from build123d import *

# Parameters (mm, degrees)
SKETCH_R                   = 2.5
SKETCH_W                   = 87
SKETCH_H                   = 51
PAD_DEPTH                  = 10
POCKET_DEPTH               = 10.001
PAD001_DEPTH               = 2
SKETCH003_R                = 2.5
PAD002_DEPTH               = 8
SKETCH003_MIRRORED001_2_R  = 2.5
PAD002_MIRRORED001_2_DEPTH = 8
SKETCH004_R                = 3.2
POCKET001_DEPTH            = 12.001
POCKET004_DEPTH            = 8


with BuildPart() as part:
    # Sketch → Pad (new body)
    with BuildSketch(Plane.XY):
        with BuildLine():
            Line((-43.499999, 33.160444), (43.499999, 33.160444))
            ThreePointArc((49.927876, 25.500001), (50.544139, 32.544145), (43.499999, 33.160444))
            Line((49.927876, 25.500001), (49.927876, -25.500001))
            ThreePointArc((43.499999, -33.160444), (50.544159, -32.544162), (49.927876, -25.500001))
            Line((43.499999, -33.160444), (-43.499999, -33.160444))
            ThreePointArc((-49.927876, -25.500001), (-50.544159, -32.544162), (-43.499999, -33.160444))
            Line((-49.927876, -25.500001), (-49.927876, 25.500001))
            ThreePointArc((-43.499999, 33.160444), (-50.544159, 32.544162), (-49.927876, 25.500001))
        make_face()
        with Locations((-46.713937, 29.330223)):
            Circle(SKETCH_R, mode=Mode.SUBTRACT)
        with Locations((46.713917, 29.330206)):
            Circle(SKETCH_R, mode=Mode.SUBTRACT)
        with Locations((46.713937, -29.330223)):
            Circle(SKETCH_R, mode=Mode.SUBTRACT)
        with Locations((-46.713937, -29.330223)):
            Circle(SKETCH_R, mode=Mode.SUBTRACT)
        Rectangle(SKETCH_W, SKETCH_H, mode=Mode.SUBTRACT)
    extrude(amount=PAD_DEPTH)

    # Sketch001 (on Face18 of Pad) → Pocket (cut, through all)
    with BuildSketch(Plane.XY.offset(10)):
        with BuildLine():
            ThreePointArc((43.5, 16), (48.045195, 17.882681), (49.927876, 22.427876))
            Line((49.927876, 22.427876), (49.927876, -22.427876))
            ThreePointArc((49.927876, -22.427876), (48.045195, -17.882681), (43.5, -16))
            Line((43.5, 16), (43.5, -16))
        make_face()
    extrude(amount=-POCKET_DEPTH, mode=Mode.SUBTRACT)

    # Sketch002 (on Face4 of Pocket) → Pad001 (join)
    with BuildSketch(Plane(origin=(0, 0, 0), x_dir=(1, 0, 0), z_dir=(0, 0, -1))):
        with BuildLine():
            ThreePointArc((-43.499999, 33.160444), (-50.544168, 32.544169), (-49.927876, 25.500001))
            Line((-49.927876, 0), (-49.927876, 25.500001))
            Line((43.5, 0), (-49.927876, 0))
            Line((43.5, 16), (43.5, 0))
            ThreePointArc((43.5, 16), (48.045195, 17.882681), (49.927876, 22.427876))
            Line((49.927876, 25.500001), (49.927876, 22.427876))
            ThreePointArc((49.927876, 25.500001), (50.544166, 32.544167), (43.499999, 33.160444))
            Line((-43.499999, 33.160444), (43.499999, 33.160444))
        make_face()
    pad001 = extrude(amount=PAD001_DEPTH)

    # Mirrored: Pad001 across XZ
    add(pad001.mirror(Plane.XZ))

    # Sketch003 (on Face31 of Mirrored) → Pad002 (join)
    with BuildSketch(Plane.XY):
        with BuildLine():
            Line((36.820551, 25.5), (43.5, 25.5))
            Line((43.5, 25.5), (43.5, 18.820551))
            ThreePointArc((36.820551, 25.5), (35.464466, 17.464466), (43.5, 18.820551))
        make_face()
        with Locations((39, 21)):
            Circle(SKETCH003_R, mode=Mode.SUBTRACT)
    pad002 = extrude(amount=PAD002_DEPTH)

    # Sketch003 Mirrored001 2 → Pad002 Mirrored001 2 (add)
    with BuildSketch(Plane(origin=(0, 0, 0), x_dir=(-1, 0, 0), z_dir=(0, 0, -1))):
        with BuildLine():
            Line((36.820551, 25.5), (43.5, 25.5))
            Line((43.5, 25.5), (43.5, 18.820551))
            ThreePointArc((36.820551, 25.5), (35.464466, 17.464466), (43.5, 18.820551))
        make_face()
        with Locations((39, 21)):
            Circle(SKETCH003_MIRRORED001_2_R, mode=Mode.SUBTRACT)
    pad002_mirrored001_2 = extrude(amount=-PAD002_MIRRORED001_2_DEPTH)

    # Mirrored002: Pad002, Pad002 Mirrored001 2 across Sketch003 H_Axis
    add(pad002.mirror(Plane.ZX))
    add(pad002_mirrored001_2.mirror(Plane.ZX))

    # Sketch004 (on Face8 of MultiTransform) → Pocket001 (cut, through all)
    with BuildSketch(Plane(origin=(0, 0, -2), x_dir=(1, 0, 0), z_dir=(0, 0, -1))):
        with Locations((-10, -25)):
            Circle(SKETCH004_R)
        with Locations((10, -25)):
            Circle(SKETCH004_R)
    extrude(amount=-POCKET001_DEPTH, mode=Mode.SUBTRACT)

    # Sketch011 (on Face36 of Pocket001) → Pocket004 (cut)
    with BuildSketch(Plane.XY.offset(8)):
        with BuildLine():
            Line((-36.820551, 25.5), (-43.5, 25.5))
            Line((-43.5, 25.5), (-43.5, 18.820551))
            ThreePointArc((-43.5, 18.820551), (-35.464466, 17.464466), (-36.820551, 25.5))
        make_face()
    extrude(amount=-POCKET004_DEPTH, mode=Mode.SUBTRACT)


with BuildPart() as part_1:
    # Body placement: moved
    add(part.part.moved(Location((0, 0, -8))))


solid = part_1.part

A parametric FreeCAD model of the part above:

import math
import FreeCAD as App
import Part
import Sketcher
from FreeCAD import Vector
Q = App.Units.Quantity

doc = App.newDocument("Part")
body = doc.addObject("PartDesign::Body", "Body")

# Sketch on XY plane
sketch1 = body.newObject("Sketcher::SketchObject", "Sketch")
sketch1.AttachmentSupport = (doc.getObject("XY_Plane"), [""])
sketch1.MapMode = "FlatFace"
sketch1.addGeometry([
    Part.LineSegment(Vector(43.499999, 33.160444, 0), Vector(-43.499999, 33.160444, 0)),  # 0
    Part.ArcOfCircle(Part.Circle(Vector(-46.713938, 29.330223, 0), Vector(0, 0, 1), 5), math.radians(49.999983), math.radians(229.999998)),  # 1
    Part.LineSegment(Vector(-49.927876, 25.500001, 0), Vector(-49.927876, -25.500001, 0)),  # 2
    Part.ArcOfCircle(Part.Circle(Vector(-46.713938, -29.330223, 0), Vector(0, 0, 1), 5), math.radians(130.000002), math.radians(310.000017)),  # 3
    Part.LineSegment(Vector(-43.499999, -33.160444, 0), Vector(43.499999, -33.160444, 0)),  # 4
    Part.ArcOfCircle(Part.Circle(Vector(46.713938, -29.330223, 0), Vector(0, 0, 1), 5), math.radians(-130.000017), math.radians(49.999998)),  # 5
    Part.LineSegment(Vector(49.927876, -25.500001, 0), Vector(49.927876, 25.500001, 0)),  # 6
    Part.ArcOfCircle(Part.Circle(Vector(46.713918, 29.330206, 0), Vector(0, 0, 1), 5), math.radians(-49.999697), math.radians(129.999716)),  # 7
    Part.Circle(Vector(46.713937, -29.330223, 0), Vector(0, 0, 1), 2.5),  # 8
    Part.Circle(Vector(-46.713937, -29.330223, 0), Vector(0, 0, 1), 2.5),  # 9
    Part.Circle(Vector(46.713917, 29.330206, 0), Vector(0, 0, 1), 2.5),  # 10
    Part.LineSegment(Vector(-43.5, -25.5, 0), Vector(-43.5, 25.5, 0)),  # 11
    Part.LineSegment(Vector(-43.5, 25.5, 0), Vector(43.5, 25.5, 0)),  # 12
    Part.LineSegment(Vector(43.5, 25.5, 0), Vector(43.5, -25.5, 0)),  # 13
    Part.LineSegment(Vector(43.5, -25.5, 0), Vector(-43.5, -25.5, 0)),  # 14
    Part.Circle(Vector(-46.713937, 29.330223, 0), Vector(0, 0, 1), 2.5),  # 15
], False)
sketch1.addConstraint([
    Sketcher.Constraint("Coincident", 0, 2, 1, 1),
    Sketcher.Constraint("Coincident", 1, 2, 2, 1),
    Sketcher.Constraint("Coincident", 2, 2, 3, 1),
    Sketcher.Constraint("Coincident", 3, 2, 4, 1),
    Sketcher.Constraint("Coincident", 4, 2, 5, 1),
    Sketcher.Constraint("Coincident", 5, 2, 6, 1),
    Sketcher.Constraint("Coincident", 6, 2, 7, 1),
    Sketcher.Constraint("Coincident", 7, 2, 0, 1),
    Sketcher.Constraint("Coincident", 11, 2, 12, 1),
    Sketcher.Constraint("Coincident", 12, 2, 13, 1),
    Sketcher.Constraint("Coincident", 13, 2, 14, 1),
    Sketcher.Constraint("Coincident", 14, 2, 11, 1),
    Sketcher.Constraint("Horizontal", 0),
    Sketcher.Constraint("Vertical", 2),
    Sketcher.Constraint("Horizontal", 4),
    Sketcher.Constraint("Vertical", 6),
    Sketcher.Constraint("Vertical", 11),
    Sketcher.Constraint("Horizontal", 12),
    Sketcher.Constraint("Vertical", 13),
    Sketcher.Constraint("Horizontal", 14),
    Sketcher.Constraint("Coincident", 8, 3, 5, 3),
    Sketcher.Constraint("Coincident", 9, 3, 3, 3),
    Sketcher.Constraint("Coincident", 10, 3, 7, 3),
    Sketcher.Constraint("Coincident", 15, 3, 1, 3),
    Sketcher.Constraint("Equal", 1, 3),
    Sketcher.Constraint("Equal", 3, 5),
    Sketcher.Constraint("Equal", 5, 7),
    Sketcher.Constraint("Equal", 8, 9),
    Sketcher.Constraint("Equal", 9, 10),
    Sketcher.Constraint("Equal", 10, 15),
    Sketcher.Constraint("Symmetric", 1, 3, 5, 3, -1, 1),
    Sketcher.Constraint("Symmetric", 2, 2, 6, 2, -1, 1),
    Sketcher.Constraint("Symmetric", 11, 2, 13, 2, -1, 1),
    Sketcher.Constraint("Symmetric", 3, 3, 5, 3, -2),
    Sketcher.Constraint("Horizontal", 6, 2, 11, 2),
    Sketcher.Constraint("Vertical", 0, 2, 3, 2),
    Sketcher.Constraint("Vertical", 3, 2, 11, 2),
    Sketcher.Constraint("Diameter", 8, Q("5 mm")),
    Sketcher.Constraint("Radius", 1, Q("5 mm")),
    Sketcher.Constraint("DistanceX", 0, 2, 0, 1, Q("86.999998 mm")),
    Sketcher.Constraint("DistanceY", 11, 1, 11, 2, Q("51 mm")),
    Sketcher.Constraint("DistanceY", 5, 3, 7, 3, Q("58.660429 mm")),
    Sketcher.Constraint("DistanceY", 15, 3, 0, 2, Q("3.830221 mm")),
    Sketcher.Constraint("DistanceX", 1, 2, 1, 3, Q("3.213938 mm")),
])
pad1 = body.newObject("PartDesign::Pad", "Pad")
pad1.Profile = sketch1
pad1.Length = 10

# Sketch on XY plane
sketch2 = body.newObject("Sketcher::SketchObject", "Sketch001")
sketch2.AttachmentSupport = (doc.getObject("XY_Plane"), [""])
sketch2.MapMode = "FlatFace"
sketch2.AttachmentOffset = App.Placement(Vector(0, 0, 10), App.Rotation())
sketch2.addGeometry([
    Part.ArcOfCircle(Part.Circle(Vector(43.500001, 22.427875, 0), Vector(0, 0, 1), 6.427875), math.radians(-90.000009), math.radians(0.000009)),
    Part.LineSegment(Vector(43.5, 16, 0), Vector(43.5, -16, 0)),
    Part.ArcOfCircle(Part.Circle(Vector(43.500001, -22.427875, 0), Vector(0, 0, 1), 6.427875), math.radians(-0.000009), math.radians(90.000009)),
    Part.LineSegment(Vector(49.927876, -22.427876, 0), Vector(49.927876, 22.427876, 0)),
], False)
sketch2.addConstraint([
    Sketcher.Constraint("Coincident", 0, 1, 1, 1),
    Sketcher.Constraint("Coincident", 1, 2, 2, 2),
    Sketcher.Constraint("Tangent", 2, 1, 3, 1),
    Sketcher.Constraint("Tangent", 3, 2, 0, 2),
    Sketcher.Constraint("Vertical", 1),
    Sketcher.Constraint("Vertical", 3),
    Sketcher.Constraint("Equal", 0, 2),
    Sketcher.Constraint("Vertical", 2, 3, 0, 1),
    Sketcher.Constraint("DistanceY", 1, 2, 1, 1, Q("32 mm")),
    Sketcher.Constraint("DistanceY", -1, 1, 0, 1, Q("16 mm")),
    Sketcher.Constraint("DistanceX", -1, 1, 0, 3, Q("43.500001 mm")),
    Sketcher.Constraint("Radius", 0, Q("6.427875 mm")),
])
pocket1 = body.newObject("PartDesign::Pocket", "Pocket")
pocket1.Profile = sketch2
pocket1.Type = "ThroughAll"

# Sketch on XY plane
sketch3 = body.newObject("Sketcher::SketchObject", "Sketch002")
sketch3.AttachmentSupport = (doc.getObject("XY_Plane"), [""])
sketch3.MapMode = "FlatFace"
sketch3.addGeometry([
    Part.ArcOfCircle(Part.Circle(Vector(-46.713947, -29.33023, 0), Vector(0, 0, 1), 5), math.radians(129.999871), math.radians(310.000147)),  # 0
    Part.LineSegment(Vector(-49.927876, -25.500001, 0), Vector(-49.927876, 0, 0)),  # 1
    Part.LineSegment(Vector(-49.927876, 0, 0), Vector(43.5, 0, 0)),  # 2
    Part.LineSegment(Vector(43.5, 0, 0), Vector(43.5, -16, 0)),  # 3
    Part.ArcOfCircle(Part.Circle(Vector(43.500001, -22.427875, 0), Vector(0, 0, 1), 6.427875), math.radians(-0.000009), math.radians(90.000009)),  # 4
    Part.LineSegment(Vector(49.927876, -22.427876, 0), Vector(49.927876, -25.500001, 0)),  # 5
    Part.ArcOfCircle(Part.Circle(Vector(46.713945, -29.330228, 0), Vector(0, 0, 1), 5), math.radians(-130.000115), math.radians(50.000096)),  # 6
    Part.LineSegment(Vector(43.499999, -33.160444, 0), Vector(-43.499999, -33.160444, 0)),  # 7
], False)
sketch3.addConstraint([
    Sketcher.Constraint("Coincident", 0, 1, 1, 1),
    Sketcher.Constraint("Coincident", 1, 2, 2, 1),
    Sketcher.Constraint("Coincident", 2, 2, 3, 1),
    Sketcher.Constraint("Coincident", 3, 2, 4, 2),
    Sketcher.Constraint("Tangent", 4, 1, 5, 1),
    Sketcher.Constraint("Coincident", 5, 2, 6, 2),
    Sketcher.Constraint("Coincident", 6, 1, 7, 1),
    Sketcher.Constraint("Coincident", 7, 2, 0, 2),
    Sketcher.Constraint("Vertical", 1),
    Sketcher.Constraint("Horizontal", 2),
    Sketcher.Constraint("Vertical", 3),
    Sketcher.Constraint("Vertical", 5),
    Sketcher.Constraint("Horizontal", 7),
    Sketcher.Constraint("Equal", 0, 6),
    Sketcher.Constraint("Symmetric", 0, 3, 6, 3, -2),
    Sketcher.Constraint("PointOnObject", 1, 2, -1),
    Sketcher.Constraint("Horizontal", 0, 1, 5, 2),
    Sketcher.Constraint("Vertical", 4, 3, 2, 2),
    Sketcher.Constraint("Vertical", 3, 2, 6, 1),
    Sketcher.Constraint("Radius", 0, Q("5 mm")),
    Sketcher.Constraint("DistanceX", 7, 2, 7, 1, Q("86.999998 mm")),
    Sketcher.Constraint("DistanceY", 3, 2, 3, 1, Q("16 mm")),
    Sketcher.Constraint("DistanceY", 1, 1, 1, 2, Q("25.500001 mm")),
    Sketcher.Constraint("Radius", 4, Q("6.427875 mm")),
    Sketcher.Constraint("DistanceY", 0, 3, -1, 1, Q("29.33023 mm")),
])
pad2 = body.newObject("PartDesign::Pad", "Pad001")
pad2.Profile = sketch3
pad2.Length = 2
pad2.Reversed = True
doc.recompute()

mirrored = body.newObject("PartDesign::Mirrored", "Mirrored")
mirrored.Originals = [pad2]
mirrored.MirrorPlane = (doc.getObject("XZ_Plane"), [""])
body.Tip = mirrored

# Sketch on XY plane
sketch4 = body.newObject("Sketcher::SketchObject", "Sketch003")
sketch4.AttachmentSupport = (doc.getObject("XY_Plane"), [""])
sketch4.MapMode = "FlatFace"
sketch4.addGeometry([
    Part.LineSegment(Vector(43.5, 25.5, 0), Vector(36.820551, 25.5, 0)),
    Part.ArcOfCircle(Part.Circle(Vector(39, 21, 0), Vector(0, 0, 1), 5), math.radians(115.841925), math.radians(334.158075)),
    Part.LineSegment(Vector(43.5, 18.820551, 0), Vector(43.5, 25.5, 0)),
    Part.Circle(Vector(39, 21, 0), Vector(0, 0, 1), 2.5),
], False)
sketch4.addConstraint([
    Sketcher.Constraint("Coincident", 0, 2, 1, 1),
    Sketcher.Constraint("Coincident", 1, 2, 2, 1),
    Sketcher.Constraint("Coincident", 2, 2, 0, 1),
    Sketcher.Constraint("Horizontal", 0),
    Sketcher.Constraint("Vertical", 2),
    Sketcher.Constraint("Coincident", 3, 3, 1, 3),
    Sketcher.Constraint("Equal", 0, 2),
    Sketcher.Constraint("Diameter", 3, Q("5 mm")),
    Sketcher.Constraint("Radius", 1, Q("5 mm")),
    Sketcher.Constraint("DistanceX", -1, 1, 1, 3, Q("39 mm")),
    Sketcher.Constraint("DistanceY", -1, 1, 1, 3, Q("21 mm")),
    Sketcher.Constraint("DistanceY", -1, 1, 0, 2, Q("25.5 mm")),
])
pad3 = body.newObject("PartDesign::Pad", "Pad002")
pad3.Profile = sketch4
pad3.Length = 8

# Sketch on XY plane
sketch5 = body.newObject("Sketcher::SketchObject", "Sketch004")
sketch5.AttachmentSupport = (doc.getObject("XY_Plane"), [""])
sketch5.MapMode = "FlatFace"
sketch5.addGeometry([
    Part.LineSegment(Vector(-43.5, 25.5, 0), Vector(-36.820551, 25.5, 0)),
    Part.ArcOfCircle(Part.Circle(Vector(-39, 21, 0), Vector(0, 0, 1), 5), math.radians(-154.158075), math.radians(64.158075)),
    Part.LineSegment(Vector(-43.5, 18.820551, 0), Vector(-43.5, 25.5, 0)),
    Part.Circle(Vector(-39, 21, 0), Vector(0, 0, 1), 2.5),
], False)
sketch5.addConstraint([
    Sketcher.Constraint("Coincident", 0, 2, 1, 2),
    Sketcher.Constraint("Coincident", 1, 1, 2, 1),
    Sketcher.Constraint("Coincident", 2, 2, 0, 1),
    Sketcher.Constraint("Horizontal", 0),
    Sketcher.Constraint("Vertical", 2),
    Sketcher.Constraint("Coincident", 3, 3, 1, 3),
    Sketcher.Constraint("Equal", 0, 2),
    Sketcher.Constraint("Diameter", 3, Q("5 mm")),
    Sketcher.Constraint("Radius", 1, Q("5 mm")),
    Sketcher.Constraint("DistanceX", 1, 3, -1, 1, Q("39 mm")),
    Sketcher.Constraint("DistanceY", -1, 1, 1, 3, Q("21 mm")),
    Sketcher.Constraint("DistanceY", -1, 1, 0, 2, Q("25.5 mm")),
])
pad4 = body.newObject("PartDesign::Pad", "Pad003")
pad4.Profile = sketch5
pad4.Length = 8
doc.recompute()

mirrored2 = body.newObject("PartDesign::Mirrored", "Mirrored001")
mirrored2.Originals = [pad3, pad4]
mirrored2.MirrorPlane = (doc.getObject("XZ_Plane"), [""])
body.Tip = mirrored2

# Sketch on XY plane
sketch6 = body.newObject("Sketcher::SketchObject", "Sketch005")
sketch6.AttachmentSupport = (doc.getObject("XY_Plane"), [""])
sketch6.MapMode = "FlatFace"
sketch6.AttachmentOffset = App.Placement(Vector(0, 0, -2), App.Rotation())
sketch6.addGeometry([
    Part.Circle(Vector(-10, 25, 0), Vector(0, 0, 1), 3.2),
    Part.Circle(Vector(10, 25, 0), Vector(0, 0, 1), 3.2),
], False)
sketch6.addConstraint([
    Sketcher.Constraint("Equal", 0, 1),
    Sketcher.Constraint("Symmetric", 0, 3, 1, 3, -2),
    Sketcher.Constraint("Diameter", 0, Q("6.4 mm")),
    Sketcher.Constraint("DistanceX", 0, 3, -1, 1, Q("10 mm")),
    Sketcher.Constraint("DistanceY", -1, 1, 0, 3, Q("25 mm")),
])
pocket2 = body.newObject("PartDesign::Pocket", "Pocket001")
pocket2.Profile = sketch6
pocket2.Type = "ThroughAll"
pocket2.Reversed = True

# Sketch on XY plane
sketch7 = body.newObject("Sketcher::SketchObject", "Sketch006")
sketch7.AttachmentSupport = (doc.getObject("XY_Plane"), [""])
sketch7.MapMode = "FlatFace"
sketch7.AttachmentOffset = App.Placement(Vector(0, 0, 8), App.Rotation())
sketch7.addGeometry([
    Part.LineSegment(Vector(-36.820551, 25.5, 0), Vector(-43.5, 25.5, 0)),
    Part.LineSegment(Vector(-43.5, 25.5, 0), Vector(-43.5, 18.820551, 0)),
    Part.ArcOfCircle(Part.Circle(Vector(-39, 21, 0), Vector(0, 0, 1), 5), math.radians(-154.158075), math.radians(64.158075)),
], False)
sketch7.addConstraint([
    Sketcher.Constraint("Coincident", 0, 2, 1, 1),
    Sketcher.Constraint("Coincident", 1, 2, 2, 1),
    Sketcher.Constraint("Coincident", 2, 2, 0, 1),
    Sketcher.Constraint("Horizontal", 0),
    Sketcher.Constraint("Vertical", 1),
    Sketcher.Constraint("Equal", 0, 1),
    Sketcher.Constraint("Radius", 2, Q("5 mm")),
    Sketcher.Constraint("DistanceX", 2, 3, -1, 1, Q("39 mm")),
    Sketcher.Constraint("DistanceY", -1, 1, 2, 3, Q("21 mm")),
    Sketcher.Constraint("DistanceX", 0, 2, -1, 1, Q("43.5 mm")),
])
pocket3 = body.newObject("PartDesign::Pocket", "Pocket002")
pocket3.Profile = sketch7
pocket3.Length = 8
body2 = doc.addObject("PartDesign::Body", "Body001")
doc.recompute()

body.Placement = App.Placement(Vector(0, 0, -8), App.Rotation(Vector(0, 0, 1), 0))
boolean = body2.newObject("PartDesign::Boolean", "Boolean")
boolean.Type = "Fuse"
boolean.addObjects([body])

doc.recompute()
